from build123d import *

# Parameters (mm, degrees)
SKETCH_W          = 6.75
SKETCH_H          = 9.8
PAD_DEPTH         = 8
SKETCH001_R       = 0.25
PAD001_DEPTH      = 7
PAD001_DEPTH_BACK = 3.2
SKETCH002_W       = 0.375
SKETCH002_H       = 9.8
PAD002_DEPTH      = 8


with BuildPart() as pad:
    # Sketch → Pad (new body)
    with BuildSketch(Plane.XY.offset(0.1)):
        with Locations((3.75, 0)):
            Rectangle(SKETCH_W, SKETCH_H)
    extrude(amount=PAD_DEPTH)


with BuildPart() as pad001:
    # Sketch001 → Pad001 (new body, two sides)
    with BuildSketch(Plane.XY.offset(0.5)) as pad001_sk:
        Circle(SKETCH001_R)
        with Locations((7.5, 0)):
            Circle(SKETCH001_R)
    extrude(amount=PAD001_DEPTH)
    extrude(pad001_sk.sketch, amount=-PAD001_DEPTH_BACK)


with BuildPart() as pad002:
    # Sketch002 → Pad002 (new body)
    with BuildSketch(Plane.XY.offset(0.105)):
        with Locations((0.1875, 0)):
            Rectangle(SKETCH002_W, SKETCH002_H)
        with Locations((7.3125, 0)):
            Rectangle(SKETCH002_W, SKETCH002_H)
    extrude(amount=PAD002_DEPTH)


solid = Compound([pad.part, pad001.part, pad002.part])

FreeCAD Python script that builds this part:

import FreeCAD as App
import Part
import Sketcher

V = App.Vector
Q = App.Units.Quantity


def add_polygon(sketch, points):
    """Adds a closed chain of lines whose ends are joined by coincident constraints."""
    first, n = sketch.GeometryCount, len(points)
    for a, b in zip(points, points[1:] + points[:1]):
        sketch.addGeometry(Part.LineSegment(App.Vector(*a, 0), App.Vector(*b, 0)), False)
    for i in range(n):
        sketch.addConstraint(Sketcher.Constraint("Coincident", first + i, 2, first + (i + 1) % n, 1))

doc = App.newDocument("Part")
body = doc.addObject("PartDesign::Body", "Body")

# Sketch on XY plane
sketch1 = doc.addObject("Sketcher::SketchObject", "Sketch")
body.addObject(sketch1)
sketch1.AttachmentSupport = (doc.XY_Plane, [""])
sketch1.MapMode = "FlatFace"
sketch1.AttachmentOffset = App.Placement(V(0, 0, 0.1), App.Rotation())
add_polygon(sketch1, [(0, 5), (0, -5), (7, -5), (7, 5)])  # lines 0-3
sketch1.addConstraint([
    Sketcher.Constraint("Vertical", 0),
    Sketcher.Constraint("Horizontal", 1),
    Sketcher.Constraint("Vertical", 2),
    Sketcher.Constraint("Horizontal", 3),
    Sketcher.Constraint("DistanceY", 0, 2, 0, 1, Q("9.8 mm")),
    Sketcher.Constraint("DistanceX", 1, 1, 1, 2, Q("6.75 mm")),
    Sketcher.Constraint("DistanceY", 0, 2, -1, 1, Q("4.9 mm")),
    Sketcher.Constraint("DistanceX", -1, 1, 0, 2, Q("0.375 mm")),
])
pad1 = doc.addObject("PartDesign::Pad", "Pad")
body.addObject(pad1)
pad1.Profile = sketch1
pad1.Length = 8
body2 = doc.addObject("PartDesign::Body", "Body001")
body2.AllowCompound = True

# Sketch on XY plane
sketch2 = doc.addObject("Sketcher::SketchObject", "Sketch001")
body2.addObject(sketch2)
sketch2.AttachmentSupport = (doc.getObject("XY_Plane001"), [""])
sketch2.MapMode = "FlatFace"
sketch2.AttachmentOffset = App.Placement(V(0, 0, 0.5), App.Rotation())
sketch2.addGeometry([
    Part.Circle(V(0, 0, 0), V(0, 0, 1), 0.25),
    Part.Circle(V(7.5, 0, 0), V(0, 0, 1), 0.25),
], False)
sketch2.addConstraint([
    Sketcher.Constraint("Coincident", 0, 3, -1, 1),
    Sketcher.Constraint("Equal", 0, 1),
    Sketcher.Constraint("PointOnObject", 1, 3, -1),
    Sketcher.Constraint("Diameter", 0, Q("0.5 mm")),
    Sketcher.Constraint("DistanceX", -1, 1, 1, 3, Q("7.5 mm")),
])
pad2 = doc.addObject("PartDesign::Pad", "Pad001")
body2.addObject(pad2)
pad2.Profile = sketch2
pad2.Type = "TwoLengths"
pad2.Length = 7
pad2.Length2 = 3.2
body3 = doc.addObject("PartDesign::Body", "Body002")
body3.AllowCompound = True

# Sketch on XY plane
sketch3 = doc.addObject("Sketcher::SketchObject", "Sketch002")
body3.addObject(sketch3)
sketch3.AttachmentSupport = (doc.getObject("XY_Plane002"), [""])
sketch3.MapMode = "FlatFace"
sketch3.AttachmentOffset = App.Placement(V(0, 0, 0.105), App.Rotation())
add_polygon(sketch3, [(0, 4.9), (0, -4.9), (0.38, -4.9), (0.38, 4.9)])  # lines 0-3
add_polygon(sketch3, [(7.12, 4.9), (7.12, -4.9), (7.5, -4.9), (7.5, 4.9)])  # lines 4-7
sketch3.addConstraint([
    Sketcher.Constraint("Vertical", 0),
    Sketcher.Constraint("Horizontal", 1),
    Sketcher.Constraint("Vertical", 2),
    Sketcher.Constraint("Horizontal", 3),
    Sketcher.Constraint("Vertical", 4),
    Sketcher.Constraint("Horizontal", 5),
    Sketcher.Constraint("Vertical", 6),
    Sketcher.Constraint("Horizontal", 7),
    Sketcher.Constraint("Symmetric", 0, 2, 3, 2, -1, 1),
    Sketcher.Constraint("Horizontal", 1, 2, 4, 2),
    Sketcher.Constraint("Horizontal", 3, 2, 6, 2),
    Sketcher.Constraint("Equal", 3, 5),
    Sketcher.Constraint("DistanceY", 0, 2, 0, 1, Q("9.8 mm")),
    Sketcher.Constraint("DistanceX", -1, 1, 5, 2, Q("7.5 mm")),
    Sketcher.Constraint("DistanceX", 1, 1, 1, 2, Q("0.375 mm")),
])
pad3 = doc.addObject("PartDesign::Pad", "Pad002")
body3.addObject(pad3)
pad3.Profile = sketch3
pad3.Length = 8

doc.recompute()
